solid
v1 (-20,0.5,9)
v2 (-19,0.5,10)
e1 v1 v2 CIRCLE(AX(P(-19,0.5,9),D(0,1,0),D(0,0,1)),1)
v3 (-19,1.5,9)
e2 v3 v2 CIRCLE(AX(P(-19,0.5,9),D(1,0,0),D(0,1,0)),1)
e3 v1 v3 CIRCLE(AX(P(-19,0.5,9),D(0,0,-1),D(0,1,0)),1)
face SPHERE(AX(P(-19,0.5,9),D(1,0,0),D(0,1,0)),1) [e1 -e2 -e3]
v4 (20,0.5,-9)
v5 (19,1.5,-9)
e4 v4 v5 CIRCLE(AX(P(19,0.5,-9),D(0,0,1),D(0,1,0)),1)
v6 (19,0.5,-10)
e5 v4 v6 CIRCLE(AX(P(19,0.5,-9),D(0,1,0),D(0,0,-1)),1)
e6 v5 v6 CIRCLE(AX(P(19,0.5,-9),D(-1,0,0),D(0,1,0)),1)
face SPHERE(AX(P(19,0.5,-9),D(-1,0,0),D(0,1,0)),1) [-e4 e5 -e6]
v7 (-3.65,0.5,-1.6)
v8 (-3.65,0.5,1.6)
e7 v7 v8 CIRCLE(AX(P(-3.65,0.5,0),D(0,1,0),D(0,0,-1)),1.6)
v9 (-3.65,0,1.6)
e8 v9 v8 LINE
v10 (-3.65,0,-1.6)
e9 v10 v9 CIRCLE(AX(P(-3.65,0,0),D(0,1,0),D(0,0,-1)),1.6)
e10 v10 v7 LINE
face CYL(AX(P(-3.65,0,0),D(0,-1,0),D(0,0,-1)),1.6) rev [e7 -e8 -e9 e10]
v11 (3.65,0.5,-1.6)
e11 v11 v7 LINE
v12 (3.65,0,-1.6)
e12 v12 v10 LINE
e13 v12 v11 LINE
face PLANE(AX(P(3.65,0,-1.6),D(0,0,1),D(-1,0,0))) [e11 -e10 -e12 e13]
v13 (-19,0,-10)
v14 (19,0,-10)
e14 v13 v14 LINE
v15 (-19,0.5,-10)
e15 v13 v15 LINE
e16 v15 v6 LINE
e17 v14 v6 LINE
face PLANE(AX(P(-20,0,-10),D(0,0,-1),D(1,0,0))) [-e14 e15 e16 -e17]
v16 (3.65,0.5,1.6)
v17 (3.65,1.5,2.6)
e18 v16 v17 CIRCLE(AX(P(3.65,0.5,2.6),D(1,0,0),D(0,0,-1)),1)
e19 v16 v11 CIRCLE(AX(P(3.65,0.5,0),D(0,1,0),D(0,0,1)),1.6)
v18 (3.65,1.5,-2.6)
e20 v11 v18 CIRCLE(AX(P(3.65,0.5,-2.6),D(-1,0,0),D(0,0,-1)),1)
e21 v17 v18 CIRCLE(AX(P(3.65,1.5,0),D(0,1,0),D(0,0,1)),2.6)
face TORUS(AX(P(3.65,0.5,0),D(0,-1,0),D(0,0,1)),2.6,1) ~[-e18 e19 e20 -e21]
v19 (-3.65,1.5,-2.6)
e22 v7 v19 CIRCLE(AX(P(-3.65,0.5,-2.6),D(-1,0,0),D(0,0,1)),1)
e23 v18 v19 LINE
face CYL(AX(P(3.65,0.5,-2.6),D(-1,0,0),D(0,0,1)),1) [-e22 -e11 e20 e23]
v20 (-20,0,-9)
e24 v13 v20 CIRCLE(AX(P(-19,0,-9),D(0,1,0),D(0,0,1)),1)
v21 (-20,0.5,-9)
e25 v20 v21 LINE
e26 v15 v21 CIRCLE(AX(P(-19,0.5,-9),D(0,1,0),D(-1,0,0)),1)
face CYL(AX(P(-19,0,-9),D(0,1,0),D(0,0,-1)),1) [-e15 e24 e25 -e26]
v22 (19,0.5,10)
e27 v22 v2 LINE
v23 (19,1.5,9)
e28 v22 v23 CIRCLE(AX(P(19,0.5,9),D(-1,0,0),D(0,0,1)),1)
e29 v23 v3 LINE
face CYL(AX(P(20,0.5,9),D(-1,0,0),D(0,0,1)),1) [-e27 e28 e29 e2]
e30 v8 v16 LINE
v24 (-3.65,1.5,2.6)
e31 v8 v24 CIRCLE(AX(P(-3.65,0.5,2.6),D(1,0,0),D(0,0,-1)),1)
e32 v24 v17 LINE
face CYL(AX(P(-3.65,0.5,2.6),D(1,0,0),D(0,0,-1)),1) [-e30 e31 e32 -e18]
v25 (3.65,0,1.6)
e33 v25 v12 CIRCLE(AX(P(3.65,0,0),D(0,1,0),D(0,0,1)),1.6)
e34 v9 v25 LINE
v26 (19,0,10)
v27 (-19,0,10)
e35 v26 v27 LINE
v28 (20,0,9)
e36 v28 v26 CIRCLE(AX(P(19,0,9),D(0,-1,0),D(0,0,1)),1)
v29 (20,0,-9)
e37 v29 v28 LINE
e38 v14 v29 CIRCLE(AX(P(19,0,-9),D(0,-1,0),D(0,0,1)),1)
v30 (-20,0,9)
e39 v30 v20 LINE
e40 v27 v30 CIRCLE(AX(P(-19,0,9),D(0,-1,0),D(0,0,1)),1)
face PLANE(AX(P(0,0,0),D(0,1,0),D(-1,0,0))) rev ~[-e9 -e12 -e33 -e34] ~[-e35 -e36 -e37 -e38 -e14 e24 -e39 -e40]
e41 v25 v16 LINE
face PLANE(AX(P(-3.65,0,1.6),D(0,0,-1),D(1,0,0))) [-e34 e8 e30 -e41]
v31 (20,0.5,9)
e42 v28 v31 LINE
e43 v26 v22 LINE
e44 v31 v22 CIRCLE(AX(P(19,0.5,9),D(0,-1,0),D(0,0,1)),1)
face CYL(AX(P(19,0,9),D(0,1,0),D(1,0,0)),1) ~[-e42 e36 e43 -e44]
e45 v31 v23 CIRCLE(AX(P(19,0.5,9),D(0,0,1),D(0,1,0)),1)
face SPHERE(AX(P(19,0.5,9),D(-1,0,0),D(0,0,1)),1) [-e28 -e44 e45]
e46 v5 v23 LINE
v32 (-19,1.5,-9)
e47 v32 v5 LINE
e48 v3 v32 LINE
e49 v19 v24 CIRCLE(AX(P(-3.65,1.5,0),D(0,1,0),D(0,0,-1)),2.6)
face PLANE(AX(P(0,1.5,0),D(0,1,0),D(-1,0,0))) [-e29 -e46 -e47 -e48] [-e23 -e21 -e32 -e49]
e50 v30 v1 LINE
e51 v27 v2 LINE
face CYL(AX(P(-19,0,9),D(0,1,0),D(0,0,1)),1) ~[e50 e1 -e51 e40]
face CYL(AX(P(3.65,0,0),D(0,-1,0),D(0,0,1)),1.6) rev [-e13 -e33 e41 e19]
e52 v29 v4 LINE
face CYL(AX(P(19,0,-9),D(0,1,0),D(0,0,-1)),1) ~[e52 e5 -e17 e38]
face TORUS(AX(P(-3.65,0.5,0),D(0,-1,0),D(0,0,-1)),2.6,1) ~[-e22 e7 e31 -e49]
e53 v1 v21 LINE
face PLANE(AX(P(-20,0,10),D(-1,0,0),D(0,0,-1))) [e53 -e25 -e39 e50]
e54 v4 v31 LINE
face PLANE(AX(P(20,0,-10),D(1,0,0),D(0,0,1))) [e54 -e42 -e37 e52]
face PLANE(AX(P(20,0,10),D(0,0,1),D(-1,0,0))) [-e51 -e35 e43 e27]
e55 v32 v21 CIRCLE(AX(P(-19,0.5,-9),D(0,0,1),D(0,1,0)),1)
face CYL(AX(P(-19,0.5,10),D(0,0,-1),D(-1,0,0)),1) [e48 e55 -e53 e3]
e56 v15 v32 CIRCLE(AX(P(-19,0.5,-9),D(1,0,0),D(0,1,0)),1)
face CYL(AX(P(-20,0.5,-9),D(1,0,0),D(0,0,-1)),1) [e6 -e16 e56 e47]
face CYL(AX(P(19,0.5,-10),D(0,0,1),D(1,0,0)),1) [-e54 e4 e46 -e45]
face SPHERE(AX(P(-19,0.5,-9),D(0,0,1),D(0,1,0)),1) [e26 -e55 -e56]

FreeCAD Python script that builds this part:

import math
import FreeCAD as App
import Part
import Sketcher


def edges_at(feature, points):
    """Names of the edges that pass closest to the given points."""
    edges = feature.Shape.Edges
    near = lambda p: min(range(len(edges)), key=lambda i: edges[i].distToShape(Part.Vertex(*p))[0])
    return sorted({f"Edge{near(p) + 1}" for p in points})


def add_polygon(sketch, points):
    """Adds a closed chain of lines whose ends are joined by coincident constraints."""
    first, n = sketch.GeometryCount, len(points)
    for a, b in zip(points, points[1:] + points[:1]):
        sketch.addGeometry(Part.LineSegment(App.Vector(*a, 0), App.Vector(*b, 0)), False)
    for i in range(n):
        sketch.addConstraint(Sketcher.Constraint("Coincident", first + i, 2, first + (i + 1) % n, 1))

doc = App.newDocument("Part")
body = doc.addObject("PartDesign::Body", "Body")

sketch1 = doc.addObject("Sketcher::SketchObject", "Sketch")
body.addObject(sketch1)
sketch1.AttachmentSupport = (doc.XZ_Plane, [""])
sketch1.MapMode = "FlatFace"
add_polygon(sketch1, [(20, -10), (-20, -10), (-20, 10), (20, 10)])
sketch1.addGeometry(Part.LineSegment(App.Vector(3.6, 1.6, 0), App.Vector(-3.6, 1.6, 0)), False)
sketch1.addGeometry(Part.ArcOfCircle(Part.Circle(App.Vector(-3.6, 0, 0), App.Vector(0, 0, 1), 1.6), math.radians(90), math.radians(270)), False)
sketch1.addGeometry(Part.LineSegment(App.Vector(-3.6, -1.6, 0), App.Vector(3.6, -1.6, 0)), False)
sketch1.addGeometry(Part.ArcOfCircle(Part.Circle(App.Vector(3.6, 0, 0), App.Vector(0, 0, 1), 1.6), math.radians(-90), math.radians(90)), False)
sketch1.addConstraint([
    Sketcher.Constraint("Tangent", 4, 2, 5, 1),
    Sketcher.Constraint("Tangent", 5, 2, 6, 1),
    Sketcher.Constraint("Tangent", 6, 2, 7, 1),
    Sketcher.Constraint("Tangent", 7, 2, 4, 1),
    Sketcher.Constraint("Horizontal", 0),
    Sketcher.Constraint("Vertical", 1),
    Sketcher.Constraint("Horizontal", 2),
    Sketcher.Constraint("Vertical", 3),
    Sketcher.Constraint("Horizontal", 4),
    Sketcher.Constraint("Horizontal", 6),
    Sketcher.Constraint("Symmetric", 5, 3, 7, 3, -1, 1),
    Sketcher.Constraint("Symmetric", 0, 2, 2, 2, -1, 1),
    Sketcher.Constraint("Radius", 5, 1.6),
    Sketcher.Constraint("DistanceX", 0, 2, 0, 1, 40.0),
    Sketcher.Constraint("DistanceY", 1, 1, 1, 2, 20.0),
    Sketcher.Constraint("DistanceX", 4, 2, 4, 1, 7.3),
])
pad1 = doc.addObject("PartDesign::Pad", "Pad")
body.addObject(pad1)
pad1.Profile = sketch1
pad1.Length = 1.5
pad1.Reversed = True
doc.recompute()

fillet = doc.addObject("PartDesign::Fillet", "Fillet")
body.addObject(fillet)
fillet.Base = (pad1, edges_at(pad1, [
    (0, 1.5, 1.6),
    (-5.25, 1.5, 0),
    (0, 1.5, -1.6),
    (5.25, 1.5, 0),
    (0, 1.5, 10),
    (-20, 1.5, 0),
    (-20, 0.75, 10),
    (0, 1.5, -10),
    (-20, 0.75, -10),
    (20, 0.75, 10),
    (20, 1.5, 0),
    (20, 0.75, -10),
]))
fillet.Radius = 1

doc.recompute()
